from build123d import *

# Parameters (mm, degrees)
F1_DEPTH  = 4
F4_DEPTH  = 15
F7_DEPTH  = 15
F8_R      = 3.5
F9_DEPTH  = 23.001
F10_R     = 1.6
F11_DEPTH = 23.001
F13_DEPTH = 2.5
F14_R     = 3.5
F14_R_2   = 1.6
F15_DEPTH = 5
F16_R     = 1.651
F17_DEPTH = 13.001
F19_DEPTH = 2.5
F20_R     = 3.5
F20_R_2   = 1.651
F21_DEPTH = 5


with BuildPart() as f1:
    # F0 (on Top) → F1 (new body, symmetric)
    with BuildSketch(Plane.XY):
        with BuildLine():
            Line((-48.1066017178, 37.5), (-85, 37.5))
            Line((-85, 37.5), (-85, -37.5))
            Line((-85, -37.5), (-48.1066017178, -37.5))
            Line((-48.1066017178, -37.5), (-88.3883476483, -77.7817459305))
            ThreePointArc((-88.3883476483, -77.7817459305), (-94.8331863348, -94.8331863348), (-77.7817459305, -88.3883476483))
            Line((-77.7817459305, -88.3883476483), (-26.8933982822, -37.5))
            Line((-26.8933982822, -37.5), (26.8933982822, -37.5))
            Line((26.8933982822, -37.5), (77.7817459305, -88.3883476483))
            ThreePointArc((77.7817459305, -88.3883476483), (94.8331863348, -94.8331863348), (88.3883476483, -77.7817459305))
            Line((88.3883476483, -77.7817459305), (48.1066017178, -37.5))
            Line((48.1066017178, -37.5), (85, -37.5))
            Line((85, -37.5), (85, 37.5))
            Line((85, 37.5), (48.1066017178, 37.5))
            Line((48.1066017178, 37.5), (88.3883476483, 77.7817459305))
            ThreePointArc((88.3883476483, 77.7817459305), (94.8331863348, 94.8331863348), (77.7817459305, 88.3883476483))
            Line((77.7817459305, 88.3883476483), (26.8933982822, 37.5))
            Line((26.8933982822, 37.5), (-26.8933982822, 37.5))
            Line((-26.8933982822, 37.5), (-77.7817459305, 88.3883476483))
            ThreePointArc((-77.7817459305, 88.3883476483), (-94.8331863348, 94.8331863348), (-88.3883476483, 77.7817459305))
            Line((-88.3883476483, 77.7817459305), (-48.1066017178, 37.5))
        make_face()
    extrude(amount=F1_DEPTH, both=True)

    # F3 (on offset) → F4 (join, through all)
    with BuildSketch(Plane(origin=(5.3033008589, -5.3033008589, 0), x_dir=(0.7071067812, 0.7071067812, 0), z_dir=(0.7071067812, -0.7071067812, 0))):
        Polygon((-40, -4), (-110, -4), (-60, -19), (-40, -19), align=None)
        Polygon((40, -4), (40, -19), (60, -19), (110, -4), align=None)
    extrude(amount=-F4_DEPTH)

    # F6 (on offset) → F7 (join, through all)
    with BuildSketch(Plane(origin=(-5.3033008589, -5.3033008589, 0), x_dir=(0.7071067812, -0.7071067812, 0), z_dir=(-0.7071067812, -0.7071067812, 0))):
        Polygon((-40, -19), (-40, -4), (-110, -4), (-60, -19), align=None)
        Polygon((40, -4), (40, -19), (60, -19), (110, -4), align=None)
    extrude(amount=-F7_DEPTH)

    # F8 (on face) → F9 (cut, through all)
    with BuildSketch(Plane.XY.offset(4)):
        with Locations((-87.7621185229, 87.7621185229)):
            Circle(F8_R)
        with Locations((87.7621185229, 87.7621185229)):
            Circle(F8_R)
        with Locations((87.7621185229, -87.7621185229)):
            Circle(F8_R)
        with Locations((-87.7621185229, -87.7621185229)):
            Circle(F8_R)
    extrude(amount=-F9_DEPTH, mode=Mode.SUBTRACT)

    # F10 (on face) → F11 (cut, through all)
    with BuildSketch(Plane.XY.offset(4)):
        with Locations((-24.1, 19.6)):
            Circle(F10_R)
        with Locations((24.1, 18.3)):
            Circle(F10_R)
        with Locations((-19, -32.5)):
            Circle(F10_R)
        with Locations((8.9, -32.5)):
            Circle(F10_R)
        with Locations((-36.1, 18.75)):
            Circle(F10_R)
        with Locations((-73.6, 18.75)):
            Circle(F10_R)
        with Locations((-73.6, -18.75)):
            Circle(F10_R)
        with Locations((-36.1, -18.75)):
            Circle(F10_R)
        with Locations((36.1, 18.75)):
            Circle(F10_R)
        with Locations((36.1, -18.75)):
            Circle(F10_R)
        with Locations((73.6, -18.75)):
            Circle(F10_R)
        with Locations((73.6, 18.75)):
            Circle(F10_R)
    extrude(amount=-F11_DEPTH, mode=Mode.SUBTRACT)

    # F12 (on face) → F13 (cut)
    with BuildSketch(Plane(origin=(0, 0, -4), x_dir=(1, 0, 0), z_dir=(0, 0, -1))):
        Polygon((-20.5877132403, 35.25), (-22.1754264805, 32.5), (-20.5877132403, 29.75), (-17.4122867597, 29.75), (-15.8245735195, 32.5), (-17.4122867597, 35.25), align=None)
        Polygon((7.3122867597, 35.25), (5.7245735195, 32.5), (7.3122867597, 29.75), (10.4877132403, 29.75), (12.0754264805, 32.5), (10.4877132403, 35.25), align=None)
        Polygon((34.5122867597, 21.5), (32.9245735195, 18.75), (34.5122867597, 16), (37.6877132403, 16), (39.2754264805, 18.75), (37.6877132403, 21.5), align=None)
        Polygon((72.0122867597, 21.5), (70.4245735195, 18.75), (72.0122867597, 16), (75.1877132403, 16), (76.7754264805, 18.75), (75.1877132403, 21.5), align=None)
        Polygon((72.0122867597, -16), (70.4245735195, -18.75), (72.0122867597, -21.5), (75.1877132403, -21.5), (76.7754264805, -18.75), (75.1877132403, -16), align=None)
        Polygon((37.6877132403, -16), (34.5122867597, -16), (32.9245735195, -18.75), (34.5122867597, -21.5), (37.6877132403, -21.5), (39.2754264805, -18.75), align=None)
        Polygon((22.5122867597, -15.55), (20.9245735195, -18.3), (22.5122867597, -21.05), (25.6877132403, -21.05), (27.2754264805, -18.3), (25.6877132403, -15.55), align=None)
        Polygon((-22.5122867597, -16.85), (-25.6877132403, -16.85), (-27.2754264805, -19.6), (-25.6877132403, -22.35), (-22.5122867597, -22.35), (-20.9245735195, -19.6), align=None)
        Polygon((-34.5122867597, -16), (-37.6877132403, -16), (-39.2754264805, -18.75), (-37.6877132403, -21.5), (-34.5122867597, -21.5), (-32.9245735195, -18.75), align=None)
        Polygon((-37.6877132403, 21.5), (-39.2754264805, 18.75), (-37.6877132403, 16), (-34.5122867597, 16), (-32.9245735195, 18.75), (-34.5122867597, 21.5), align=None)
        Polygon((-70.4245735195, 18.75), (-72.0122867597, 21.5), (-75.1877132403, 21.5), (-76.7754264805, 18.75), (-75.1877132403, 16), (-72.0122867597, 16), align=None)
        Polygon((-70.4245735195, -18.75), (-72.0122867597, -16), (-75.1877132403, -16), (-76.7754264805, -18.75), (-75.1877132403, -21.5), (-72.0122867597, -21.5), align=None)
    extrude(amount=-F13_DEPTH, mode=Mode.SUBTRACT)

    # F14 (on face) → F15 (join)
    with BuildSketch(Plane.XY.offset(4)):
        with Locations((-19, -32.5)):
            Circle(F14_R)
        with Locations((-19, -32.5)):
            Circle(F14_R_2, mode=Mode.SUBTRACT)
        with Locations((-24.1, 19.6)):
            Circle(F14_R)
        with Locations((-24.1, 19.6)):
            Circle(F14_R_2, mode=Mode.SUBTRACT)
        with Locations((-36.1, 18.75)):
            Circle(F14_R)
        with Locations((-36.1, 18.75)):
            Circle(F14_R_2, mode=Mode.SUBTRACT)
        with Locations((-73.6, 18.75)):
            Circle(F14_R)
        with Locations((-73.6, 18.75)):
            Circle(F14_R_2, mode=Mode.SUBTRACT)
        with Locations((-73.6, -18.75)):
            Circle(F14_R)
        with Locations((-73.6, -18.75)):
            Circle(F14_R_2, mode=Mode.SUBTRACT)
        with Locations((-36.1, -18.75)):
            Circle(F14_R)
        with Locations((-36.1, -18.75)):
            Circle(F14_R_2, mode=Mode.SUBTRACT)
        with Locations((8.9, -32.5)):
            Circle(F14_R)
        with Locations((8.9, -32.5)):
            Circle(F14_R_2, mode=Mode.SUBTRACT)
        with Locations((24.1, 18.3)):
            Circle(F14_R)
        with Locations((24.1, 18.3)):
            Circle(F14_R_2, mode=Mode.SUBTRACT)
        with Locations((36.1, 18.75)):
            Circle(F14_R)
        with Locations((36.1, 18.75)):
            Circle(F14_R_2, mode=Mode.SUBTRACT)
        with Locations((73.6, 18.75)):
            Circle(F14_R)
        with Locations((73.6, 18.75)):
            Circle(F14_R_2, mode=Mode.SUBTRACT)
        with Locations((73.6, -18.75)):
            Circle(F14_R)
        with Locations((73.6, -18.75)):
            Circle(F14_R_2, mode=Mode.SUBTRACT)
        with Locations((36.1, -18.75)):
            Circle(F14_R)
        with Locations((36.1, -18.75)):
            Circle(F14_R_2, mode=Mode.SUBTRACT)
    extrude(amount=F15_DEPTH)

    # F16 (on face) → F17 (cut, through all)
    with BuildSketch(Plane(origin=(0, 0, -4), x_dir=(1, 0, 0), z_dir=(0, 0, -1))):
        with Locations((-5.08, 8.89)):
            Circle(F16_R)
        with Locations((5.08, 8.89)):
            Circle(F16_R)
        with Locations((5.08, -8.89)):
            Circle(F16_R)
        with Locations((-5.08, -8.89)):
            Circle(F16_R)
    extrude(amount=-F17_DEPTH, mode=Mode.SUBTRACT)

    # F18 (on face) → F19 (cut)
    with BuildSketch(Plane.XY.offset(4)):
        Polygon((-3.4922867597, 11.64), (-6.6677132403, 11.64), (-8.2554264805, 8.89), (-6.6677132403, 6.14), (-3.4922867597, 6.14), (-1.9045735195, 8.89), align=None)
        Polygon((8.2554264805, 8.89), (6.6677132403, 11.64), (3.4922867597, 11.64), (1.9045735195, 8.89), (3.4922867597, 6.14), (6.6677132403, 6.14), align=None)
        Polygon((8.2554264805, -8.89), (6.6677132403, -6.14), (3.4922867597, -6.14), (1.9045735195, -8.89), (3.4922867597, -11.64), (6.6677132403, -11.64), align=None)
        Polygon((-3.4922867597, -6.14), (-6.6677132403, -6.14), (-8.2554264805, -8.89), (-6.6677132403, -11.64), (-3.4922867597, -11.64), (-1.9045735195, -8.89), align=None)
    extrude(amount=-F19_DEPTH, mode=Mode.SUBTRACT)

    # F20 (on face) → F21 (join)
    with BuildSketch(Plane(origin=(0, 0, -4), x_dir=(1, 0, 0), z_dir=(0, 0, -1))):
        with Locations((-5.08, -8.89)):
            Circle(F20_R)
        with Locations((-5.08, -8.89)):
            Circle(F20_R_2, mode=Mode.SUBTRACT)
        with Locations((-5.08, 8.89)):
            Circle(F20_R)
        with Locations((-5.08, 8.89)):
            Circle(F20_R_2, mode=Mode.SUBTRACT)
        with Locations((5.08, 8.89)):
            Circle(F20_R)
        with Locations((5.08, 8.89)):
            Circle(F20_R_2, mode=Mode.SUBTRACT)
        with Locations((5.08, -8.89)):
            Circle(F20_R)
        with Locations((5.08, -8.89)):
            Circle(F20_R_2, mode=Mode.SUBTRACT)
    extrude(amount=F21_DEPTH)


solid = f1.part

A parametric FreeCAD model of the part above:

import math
import FreeCAD as App
import Part
import Sketcher
from FreeCAD import Vector
Q = App.Units.Quantity

doc = App.newDocument("Part")
params = doc.addObject("Spreadsheet::Sheet", "Params")
for row, (alias, value) in enumerate([
    ("sketch1_radius", "10 mm"),
    ("sketch1_height", "75 mm"),
    ("pad1_length", "8 mm"),
    ("sketch2_width", "70 mm"),
    ("sketch2_width2", "20 mm"),
    ("sketch2_height", "15 mm"),
    ("pad2_length", "15 mm"),
    ("sketch3_width", "70 mm"),
    ("sketch3_width2", "20 mm"),
    ("sketch3_height", "15 mm"),
    ("pad3_length", "15 mm"),
    ("sketch4_diameter", "7 mm"),
    ("sketch5_diameter", "3.2 mm"),
    ("pocket3_length", "2.5 mm"),
    ("sketch7_diameter", "7 mm"),
    ("sketch7_diameter2", "3.2 mm"),
    ("pad4_length", "5 mm"),
    ("pocket5_length", "2.5 mm"),
    ("sketch10_diameter", "7 mm"),
    ("pad5_length", "5 mm"),
], start=1):
    params.set(f"A{row}", alias)
    params.set(f"B{row}", "=" + value)
    params.setAlias(f"B{row}", alias)

body = doc.addObject("PartDesign::Body", "Body")

sketch1 = body.newObject("Sketcher::SketchObject", "Sketch")
sketch1.AttachmentSupport = (doc.getObject("XY_Plane"), [""])
sketch1.MapMode = "FlatFace"
sketch1.addGeometry([
    Part.LineSegment(Vector(-48, 38, 0), Vector(-85, 38, 0)),
    Part.LineSegment(Vector(-85, 38, 0), Vector(-85, -38, 0)),
    Part.LineSegment(Vector(-85, -38, 0), Vector(-48, -38, 0)),
    Part.LineSegment(Vector(-48, -38, 0), Vector(-88, -78, 0)),
    Part.ArcOfCircle(Part.Circle(Vector(-88, -88, 0), Vector(0, 0, 1), 10), math.radians(94), math.radians(356)),
    Part.LineSegment(Vector(-78, -88, 0), Vector(-27, -38, 0)),
    Part.LineSegment(Vector(-27, -38, 0), Vector(27, -38, 0)),
    Part.LineSegment(Vector(27, -38, 0), Vector(78, -88, 0)),
    Part.ArcOfCircle(Part.Circle(Vector(88, -88, 0), Vector(0, 0, 1), 10), math.radians(-176), math.radians(86)),
    Part.LineSegment(Vector(88, -78, 0), Vector(48, -38, 0)),
    Part.LineSegment(Vector(48, -38, 0), Vector(85, -38, 0)),
    Part.LineSegment(Vector(85, -38, 0), Vector(85, 38, 0)),
    Part.LineSegment(Vector(85, 38, 0), Vector(48, 38, 0)),
    Part.LineSegment(Vector(48, 38, 0), Vector(88, 78, 0)),
    Part.ArcOfCircle(Part.Circle(Vector(88, 88, 0), Vector(0, 0, 1), 10), math.radians(-86), math.radians(176)),
    Part.LineSegment(Vector(78, 88, 0), Vector(27, 38, 0)),
    Part.LineSegment(Vector(27, 38, 0), Vector(-27, 38, 0)),
    Part.LineSegment(Vector(-27, 38, 0), Vector(-78, 88, 0)),
    Part.ArcOfCircle(Part.Circle(Vector(-88, 88, 0), Vector(0, 0, 1), 10), math.radians(4), math.radians(266)),
    Part.LineSegment(Vector(-88, 78, 0), Vector(-48, 38, 0)),
], False)
sketch1.addConstraint([
    Sketcher.Constraint("Coincident", 0, 2, 1, 1),
    Sketcher.Constraint("Coincident", 1, 2, 2, 1),
    Sketcher.Constraint("Coincident", 2, 2, 3, 1),
    Sketcher.Constraint("Coincident", 3, 2, 4, 1),
    Sketcher.Constraint("Coincident", 4, 2, 5, 1),
    Sketcher.Constraint("Coincident", 5, 2, 6, 1),
    Sketcher.Constraint("Coincident", 6, 2, 7, 1),
    Sketcher.Constraint("Coincident", 7, 2, 8, 1),
    Sketcher.Constraint("Coincident", 8, 2, 9, 1),
    Sketcher.Constraint("Coincident", 9, 2, 10, 1),
    Sketcher.Constraint("Coincident", 10, 2, 11, 1),
    Sketcher.Constraint("Coincident", 11, 2, 12, 1),
    Sketcher.Constraint("Coincident", 12, 2, 13, 1),
    Sketcher.Constraint("Coincident", 13, 2, 14, 1),
    Sketcher.Constraint("Coincident", 14, 2, 15, 1),
    Sketcher.Constraint("Coincident", 15, 2, 16, 1),
    Sketcher.Constraint("Coincident", 16, 2, 17, 1),
    Sketcher.Constraint("Coincident", 17, 2, 18, 1),
    Sketcher.Constraint("Coincident", 18, 2, 19, 1),
    Sketcher.Constraint("Coincident", 19, 2, 0, 1),
    Sketcher.Constraint("Horizontal", 0),
    Sketcher.Constraint("Vertical", 1),
    Sketcher.Constraint("Horizontal", 2),
    Sketcher.Constraint("Horizontal", 6),
    Sketcher.Constraint("Horizontal", 10),
    Sketcher.Constraint("Vertical", 11),
    Sketcher.Constraint("Horizontal", 12),
    Sketcher.Constraint("Horizontal", 16),
    Sketcher.Constraint("Equal", 4, 8),
    Sketcher.Constraint("Equal", 8, 14),
    Sketcher.Constraint("Equal", 14, 18),
    Sketcher.Constraint("Symmetric", 4, 3, 14, 3, -1, 1),
    Sketcher.Constraint("Symmetric", 8, 3, 18, 3, -1, 1),
    Sketcher.Constraint("Symmetric", 0, 2, 10, 2, -1, 1),
    Sketcher.Constraint("Symmetric", 2, 2, 12, 2, -1, 1),
    Sketcher.Constraint("Symmetric", 5, 2, 15, 2, -1, 1),
    Sketcher.Constraint("Symmetric", 4, 3, 8, 3, -2),
    Sketcher.Constraint("Symmetric", 2, 2, 9, 2, -2),
    Sketcher.Constraint("Parallel", 3, 5),
    Sketcher.Constraint("Perpendicular", 5, 7),
    Sketcher.Constraint("Parallel", 7, 9),
    Sketcher.Constraint("Perpendicular", 9, 13),
    Sketcher.Constraint("Parallel", 13, 15),
    Sketcher.Constraint("Perpendicular", 15, 17),
    Sketcher.Constraint("Parallel", 17, 19),
    Sketcher.Constraint("Horizontal", 2, 2, 5, 2),
    Sketcher.Constraint("Horizontal", 4, 2, 7, 2),
    Sketcher.Constraint("Horizontal", 3, 2, 8, 2),
    Sketcher.Constraint("Horizontal", 14, 2, 17, 2),
    Sketcher.Constraint("Horizontal", 13, 2, 18, 2),
    Sketcher.Constraint("Radius", 4, Q("10 mm")),
    Sketcher.Constraint("DistanceY", 1, 2, 1, 1, Q("75 mm")),
    Sketcher.Constraint("DistanceX", 0, 2, -1, 1, Q("85 mm")),
    Sketcher.Constraint("DistanceX", 2, 2, 6, 2, Q("75 mm")),
    Sketcher.Constraint("DistanceX", 0, 2, 0, 1, Q("36.893398 mm")),
    Sketcher.Constraint("DistanceX", 3, 2, 4, 2, Q("10.606602 mm")),
    Sketcher.Constraint("Distance", 3, Q("56.966991 mm")),
])
sketch1.setExpression("Constraints[50]", "Params.sketch1_radius")
sketch1.setExpression("Constraints[51]", "Params.sketch1_height")
pad1 = body.newObject("PartDesign::Pad", "Pad")
pad1.Profile = sketch1
pad1.setExpression("Length", "Params.pad1_length")
pad1.Midplane = True

sketch2 = body.newObject("Sketcher::SketchObject", "Sketch001")
sketch2.Placement = App.Placement(Vector(5.303301, -5.303301, 0), App.Rotation(Vector(0.707106781, 0.707106781, 0), Vector(0, 0, 0.999999999), Vector(0.707106781, -0.707106781, 0), "ZXY"))
sketch2.addGeometry([
    Part.LineSegment(Vector(-40, -4, 0), Vector(-110, -4, 0)),
    Part.LineSegment(Vector(-110, -4, 0), Vector(-60, -19, 0)),
    Part.LineSegment(Vector(-60, -19, 0), Vector(-40, -19, 0)),
    Part.LineSegment(Vector(-40, -19, 0), Vector(-40, -4, 0)),
    Part.LineSegment(Vector(40, -4, 0), Vector(40, -19, 0)),
    Part.LineSegment(Vector(40, -19, 0), Vector(60, -19, 0)),
    Part.LineSegment(Vector(60, -19, 0), Vector(110, -4, 0)),
    Part.LineSegment(Vector(110, -4, 0), Vector(40, -4, 0)),
], False)
sketch2.addConstraint([
    Sketcher.Constraint("Coincident", 0, 2, 1, 1),
    Sketcher.Constraint("Coincident", 1, 2, 2, 1),
    Sketcher.Constraint("Coincident", 2, 2, 3, 1),
    Sketcher.Constraint("Coincident", 3, 2, 0, 1),
    Sketcher.Constraint("Coincident", 4, 2, 5, 1),
    Sketcher.Constraint("Coincident", 5, 2, 6, 1),
    Sketcher.Constraint("Coincident", 6, 2, 7, 1),
    Sketcher.Constraint("Coincident", 7, 2, 4, 1),
    Sketcher.Constraint("Horizontal", 0),
    Sketcher.Constraint("Horizontal", 2),
    Sketcher.Constraint("Vertical", 3),
    Sketcher.Constraint("Vertical", 4),
    Sketcher.Constraint("Horizontal", 5),
    Sketcher.Constraint("Horizontal", 7),
    Sketcher.Constraint("Symmetric", 2, 2, 4, 2, -2),
    Sketcher.Constraint("Symmetric", 0, 2, 6, 2, -2),
    Sketcher.Constraint("Equal", 2, 5),
    Sketcher.Constraint("DistanceX", 0, 2, 0, 1, Q("70 mm")),
    Sketcher.Constraint("DistanceX", 2, 1, 2, 2, Q("20 mm")),
    Sketcher.Constraint("DistanceY", 3, 1, 3, 2, Q("15 mm")),
    Sketcher.Constraint("DistanceX", 0, 2, -1, 1, Q("110 mm")),
    Sketcher.Constraint("DistanceY", 0, 2, -1, 1, Q("4 mm")),
])
sketch2.setExpression("Constraints[17]", "Params.sketch2_width")
sketch2.setExpression("Constraints[18]", "Params.sketch2_width2")
sketch2.setExpression("Constraints[19]", "Params.sketch2_height")
pad2 = body.newObject("PartDesign::Pad", "Pad001")
pad2.Profile = sketch2
pad2.setExpression("Length", "Params.pad2_length")
pad2.Reversed = True

sketch3 = body.newObject("Sketcher::SketchObject", "Sketch002")
sketch3.Placement = App.Placement(Vector(-5.303301, -5.303301, 0), App.Rotation(Vector(0.707106781, -0.707106781, 0), Vector(0, 0, 0.999999999), Vector(-0.707106781, -0.707106781, 0), "ZXY"))
sketch3.addGeometry([
    Part.LineSegment(Vector(-40, -19, 0), Vector(-40, -4, 0)),
    Part.LineSegment(Vector(-40, -4, 0), Vector(-110, -4, 0)),
    Part.LineSegment(Vector(-110, -4, 0), Vector(-60, -19, 0)),
    Part.LineSegment(Vector(-60, -19, 0), Vector(-40, -19, 0)),
    Part.LineSegment(Vector(40, -4, 0), Vector(40, -19, 0)),
    Part.LineSegment(Vector(40, -19, 0), Vector(60, -19, 0)),
    Part.LineSegment(Vector(60, -19, 0), Vector(110, -4, 0)),
    Part.LineSegment(Vector(110, -4, 0), Vector(40, -4, 0)),
], False)
sketch3.addConstraint([
    Sketcher.Constraint("Coincident", 0, 2, 1, 1),
    Sketcher.Constraint("Coincident", 1, 2, 2, 1),
    Sketcher.Constraint("Coincident", 2, 2, 3, 1),
    Sketcher.Constraint("Coincident", 3, 2, 0, 1),
    Sketcher.Constraint("Coincident", 4, 2, 5, 1),
    Sketcher.Constraint("Coincident", 5, 2, 6, 1),
    Sketcher.Constraint("Coincident", 6, 2, 7, 1),
    Sketcher.Constraint("Coincident", 7, 2, 4, 1),
    Sketcher.Constraint("Vertical", 0),
    Sketcher.Constraint("Horizontal", 1),
    Sketcher.Constraint("Horizontal", 3),
    Sketcher.Constraint("Vertical", 4),
    Sketcher.Constraint("Horizontal", 5),
    Sketcher.Constraint("Horizontal", 7),
    Sketcher.Constraint("Symmetric", 3, 2, 4, 2, -2),
    Sketcher.Constraint("Symmetric", 1, 2, 6, 2, -2),
    Sketcher.Constraint("Equal", 3, 5),
    Sketcher.Constraint("DistanceX", 1, 2, 1, 1, Q("70 mm")),
    Sketcher.Constraint("DistanceX", 3, 1, 3, 2, Q("20 mm")),
    Sketcher.Constraint("DistanceY", 0, 1, 0, 2, Q("15 mm")),
    Sketcher.Constraint("DistanceX", 0, 2, -1, 1, Q("40 mm")),
    Sketcher.Constraint("DistanceY", 0, 2, -1, 1, Q("4 mm")),
])
sketch3.setExpression("Constraints[17]", "Params.sketch3_width")
sketch3.setExpression("Constraints[18]", "Params.sketch3_width2")
sketch3.setExpression("Constraints[19]", "Params.sketch3_height")
pad3 = body.newObject("PartDesign::Pad", "Pad002")
pad3.Profile = sketch3
pad3.setExpression("Length", "Params.pad3_length")
pad3.Reversed = True

sketch4 = body.newObject("Sketcher::SketchObject", "Sketch003")
sketch4.AttachmentSupport = (doc.getObject("XY_Plane"), [""])
sketch4.MapMode = "FlatFace"
sketch4.AttachmentOffset = App.Placement(Vector(0, 0, 4), App.Rotation())
sketch4.addGeometry([
    Part.Circle(Vector(-87.8, 87.8, 0), Vector(0, 0, 1), 3.5),
    Part.Circle(Vector(87.8, 87.8, 0), Vector(0, 0, 1), 3.5),
    Part.Circle(Vector(87.8, -87.8, 0), Vector(0, 0, 1), 3.5),
    Part.Circle(Vector(-87.8, -87.8, 0), Vector(0, 0, 1), 3.5),
], False)
sketch4.addConstraint([
    Sketcher.Constraint("Equal", 0, 1),
    Sketcher.Constraint("Equal", 1, 2),
    Sketcher.Constraint("Equal", 2, 3),
    Sketcher.Constraint("Symmetric", 0, 3, 2, 3, -1, 1),
    Sketcher.Constraint("Symmetric", 1, 3, 3, 3, -1, 1),
    Sketcher.Constraint("Symmetric", 0, 3, 1, 3, -2),
    Sketcher.Constraint("Diameter", 0, Q("7 mm")),
    Sketcher.Constraint("DistanceX", 0, 3, -1, 1, Q("87.762119 mm")),
    Sketcher.Constraint("DistanceY", -1, 1, 0, 3, Q("87.762119 mm")),
])
sketch4.setExpression("Constraints[6]", "Params.sketch4_diameter")
pocket1 = body.newObject("PartDesign::Pocket", "Pocket")
pocket1.Profile = sketch4
pocket1.Type = "ThroughAll"

sketch5 = body.newObject("Sketcher::SketchObject", "Sketch004")
sketch5.AttachmentSupport = (doc.getObject("XY_Plane"), [""])
sketch5.MapMode = "FlatFace"
sketch5.AttachmentOffset = App.Placement(Vector(0, 0, 4), App.Rotation())
sketch5.addGeometry([
    Part.Circle(Vector(-24.1, 19.6, 0), Vector(0, 0, 1), 1.6),
    Part.Circle(Vector(24.1, 18.3, 0), Vector(0, 0, 1), 1.6),
    Part.Circle(Vector(-19, -32.5, 0), Vector(0, 0, 1), 1.6),
    Part.Circle(Vector(8.9, -32.5, 0), Vector(0, 0, 1), 1.6),
    Part.Circle(Vector(-36.1, 18.8, 0), Vector(0, 0, 1), 1.6),
    Part.Circle(Vector(-73.6, 18.8, 0), Vector(0, 0, 1), 1.6),
    Part.Circle(Vector(-73.6, -18.8, 0), Vector(0, 0, 1), 1.6),
    Part.Circle(Vector(-36.1, -18.8, 0), Vector(0, 0, 1), 1.6),
    Part.Circle(Vector(36.1, 18.8, 0), Vector(0, 0, 1), 1.6),
    Part.Circle(Vector(36.1, -18.8, 0), Vector(0, 0, 1), 1.6),
    Part.Circle(Vector(73.6, -18.8, 0), Vector(0, 0, 1), 1.6),
    Part.Circle(Vector(73.6, 18.8, 0), Vector(0, 0, 1), 1.6),
], False)
sketch5.addConstraint([
    Sketcher.Constraint("Equal", 0, 1),
    Sketcher.Constraint("Equal", 1, 2),
    Sketcher.Constraint("Equal", 2, 3),
    Sketcher.Constraint("Equal", 3, 4),
    Sketcher.Constraint("Equal", 4, 5),
    Sketcher.Constraint("Equal", 5, 6),
    Sketcher.Constraint("Equal", 6, 7),
    Sketcher.Constraint("Equal", 7, 8),
    Sketcher.Constraint("Equal", 8, 9),
    Sketcher.Constraint("Equal", 9, 10),
    Sketcher.Constraint("Equal", 10, 11),
    Sketcher.Constraint("Symmetric", 7, 3, 8, 3, -1, 1),
    Sketcher.Constraint("Symmetric", 4, 3, 9, 3, -1, 1),
    Sketcher.Constraint("Symmetric", 5, 3, 10, 3, -1, 1),
    Sketcher.Constraint("Symmetric", 6, 3, 11, 3, -1, 1),
    Sketcher.Constraint("Symmetric", 4, 3, 8, 3, -2),
    Sketcher.Constraint("Symmetric", 6, 3, 10, 3, -2),
    Sketcher.Constraint("Horizontal", 2, 3, 3, 3),
    Sketcher.Constraint("Horizontal", 4, 3, 5, 3),
    Sketcher.Constraint("Diameter", 0, Q("3.2 mm")),
    Sketcher.Constraint("DistanceX", 2, 3, -1, 1, Q("19 mm")),
    Sketcher.Constraint("DistanceX", 0, 3, 3, 3, Q("33 mm")),
    Sketcher.Constraint("DistanceX", 4, 3, 0, 3, Q("12 mm")),
    Sketcher.Constraint("DistanceX", 1, 3, 8, 3, Q("12 mm")),
    Sketcher.Constraint("DistanceX", 0, 3, -1, 1, Q("24.1 mm")),
    Sketcher.Constraint("DistanceY", -1, 1, 0, 3, Q("19.6 mm")),
    Sketcher.Constraint("DistanceY", -1, 1, 1, 3, Q("18.3 mm")),
    Sketcher.Constraint("DistanceY", 2, 3, -1, 1, Q("32.5 mm")),
    Sketcher.Constraint("DistanceX", 5, 3, -1, 1, Q("73.6 mm")),
    Sketcher.Constraint("DistanceY", 6, 3, 5, 3, Q("37.5 mm")),
])
sketch5.setExpression("Constraints[19]", "Params.sketch5_diameter")
pocket2 = body.newObject("PartDesign::Pocket", "Pocket001")
pocket2.Profile = sketch5
pocket2.Type = "ThroughAll"

sketch6 = body.newObject("Sketcher::SketchObject", "Sketch005")
sketch6.AttachmentSupport = (doc.getObject("XY_Plane"), [""])
sketch6.MapMode = "FlatFace"
sketch6.AttachmentOffset = App.Placement(Vector(0, 0, -4), App.Rotation())
sketch6.addGeometry([
    Part.LineSegment(Vector(-20.6, -35.2, 0), Vector(-22.2, -32.5, 0)),
    Part.LineSegment(Vector(-22.2, -32.5, 0), Vector(-20.6, -29.8, 0)),
    Part.LineSegment(Vector(-20.6, -29.8, 0), Vector(-17.4, -29.8, 0)),
    Part.LineSegment(Vector(-17.4, -29.8, 0), Vector(-15.8, -32.5, 0)),
    Part.LineSegment(Vector(-15.8, -32.5, 0), Vector(-17.4, -35.2, 0)),
    Part.LineSegment(Vector(-17.4, -35.2, 0), Vector(-20.6, -35.2, 0)),
    Part.LineSegment(Vector(7.3, -35.2, 0), Vector(5.7, -32.5, 0)),
    Part.LineSegment(Vector(5.7, -32.5, 0), Vector(7.3, -29.8, 0)),
    Part.LineSegment(Vector(7.3, -29.8, 0), Vector(10.5, -29.8, 0)),
    Part.LineSegment(Vector(10.5, -29.8, 0), Vector(12.1, -32.5, 0)),
    Part.LineSegment(Vector(12.1, -32.5, 0), Vector(10.5, -35.2, 0)),
    Part.LineSegment(Vector(10.5, -35.2, 0), Vector(7.3, -35.2, 0)),
    Part.LineSegment(Vector(34.5, -21.5, 0), Vector(32.9, -18.8, 0)),
    Part.LineSegment(Vector(32.9, -18.8, 0), Vector(34.5, -16, 0)),
    Part.LineSegment(Vector(34.5, -16, 0), Vector(37.7, -16, 0)),
    Part.LineSegment(Vector(37.7, -16, 0), Vector(39.3, -18.8, 0)),
    Part.LineSegment(Vector(39.3, -18.8, 0), Vector(37.7, -21.5, 0)),
    Part.LineSegment(Vector(37.7, -21.5, 0), Vector(34.5, -21.5, 0)),
    Part.LineSegment(Vector(72, -21.5, 0), Vector(70.4, -18.8, 0)),
    Part.LineSegment(Vector(70.4, -18.8, 0), Vector(72, -16, 0)),
    Part.LineSegment(Vector(72, -16, 0), Vector(75.2, -16, 0)),
    Part.LineSegment(Vector(75.2, -16, 0), Vector(76.8, -18.8, 0)),
    Part.LineSegment(Vector(76.8, -18.8, 0), Vector(75.2, -21.5, 0)),
    Part.LineSegment(Vector(75.2, -21.5, 0), Vector(72, -21.5, 0)),
    Part.LineSegment(Vector(72, 16, 0), Vector(70.4, 18.8, 0)),
    Part.LineSegment(Vector(70.4, 18.8, 0), Vector(72, 21.5, 0)),
    Part.LineSegment(Vector(72, 21.5, 0), Vector(75.2, 21.5, 0)),
    Part.LineSegment(Vector(75.2, 21.5, 0), Vector(76.8, 18.8, 0)),
    Part.LineSegment(Vector(76.8, 18.8, 0), Vector(75.2, 16, 0)),
    Part.LineSegment(Vector(75.2, 16, 0), Vector(72, 16, 0)),
    Part.LineSegment(Vector(37.7, 16, 0), Vector(34.5, 16, 0)),
    Part.LineSegment(Vector(34.5, 16, 0), Vector(32.9, 18.8, 0)),
    Part.LineSegment(Vector(32.9, 18.8, 0), Vector(34.5, 21.5, 0)),
    Part.LineSegment(Vector(34.5, 21.5, 0), Vector(37.7, 21.5, 0)),
    Part.LineSegment(Vector(37.7, 21.5, 0), Vector(39.3, 18.8, 0)),
    Part.LineSegment(Vector(39.3, 18.8, 0), Vector(37.7, 16, 0)),
    Part.LineSegment(Vector(22.5, 15.6, 0), Vector(20.9, 18.3, 0)),
    Part.LineSegment(Vector(20.9, 18.3, 0), Vector(22.5, 21.1, 0)),
    Part.LineSegment(Vector(22.5, 21.1, 0), Vector(25.7, 21.1, 0)),
    Part.LineSegment(Vector(25.7, 21.1, 0), Vector(27.3, 18.3, 0)),
    Part.LineSegment(Vector(27.3, 18.3, 0), Vector(25.7, 15.6, 0)),
    Part.LineSegment(Vector(25.7, 15.6, 0), Vector(22.5, 15.6, 0)),
    Part.LineSegment(Vector(-22.5, 16.9, 0), Vector(-25.7, 16.9, 0)),
    Part.LineSegment(Vector(-25.7, 16.9, 0), Vector(-27.3, 19.6, 0)),
    Part.LineSegment(Vector(-27.3, 19.6, 0), Vector(-25.7, 22.4, 0)),
    Part.LineSegment(Vector(-25.7, 22.4, 0), Vector(-22.5, 22.4, 0)),
    Part.LineSegment(Vector(-22.5, 22.4, 0), Vector(-20.9, 19.6, 0)),
    Part.LineSegment(Vector(-20.9, 19.6, 0), Vector(-22.5, 16.9, 0)),
    Part.LineSegment(Vector(-34.5, 16, 0), Vector(-37.7, 16, 0)),
    Part.LineSegment(Vector(-37.7, 16, 0), Vector(-39.3, 18.8, 0)),
    Part.LineSegment(Vector(-39.3, 18.8, 0), Vector(-37.7, 21.5, 0)),
    Part.LineSegment(Vector(-37.7, 21.5, 0), Vector(-34.5, 21.5, 0)),
    Part.LineSegment(Vector(-34.5, 21.5, 0), Vector(-32.9, 18.8, 0)),
    Part.LineSegment(Vector(-32.9, 18.8, 0), Vector(-34.5, 16, 0)),
    Part.LineSegment(Vector(-37.7, -21.5, 0), Vector(-39.3, -18.8, 0)),
    Part.LineSegment(Vector(-39.3, -18.8, 0), Vector(-37.7, -16, 0)),
    Part.LineSegment(Vector(-37.7, -16, 0), Vector(-34.5, -16, 0)),
    Part.LineSegment(Vector(-34.5, -16, 0), Vector(-32.9, -18.8, 0)),
    Part.LineSegment(Vector(-32.9, -18.8, 0), Vector(-34.5, -21.5, 0)),
    Part.LineSegment(Vector(-34.5, -21.5, 0), Vector(-37.7, -21.5, 0)),
    Part.LineSegment(Vector(-70.4, -18.8, 0), Vector(-72, -21.5, 0)),
    Part.LineSegment(Vector(-72, -21.5, 0), Vector(-75.2, -21.5, 0)),
    Part.LineSegment(Vector(-75.2, -21.5, 0), Vector(-76.8, -18.8, 0)),
    Part.LineSegment(Vector(-76.8, -18.8, 0), Vector(-75.2, -16, 0)),
    Part.LineSegment(Vector(-75.2, -16, 0), Vector(-72, -16, 0)),
    Part.LineSegment(Vector(-72, -16, 0), Vector(-70.4, -18.8, 0)),
    Part.LineSegment(Vector(-70.4, 18.8, 0), Vector(-72, 16, 0)),
    Part.LineSegment(Vector(-72, 16, 0), Vector(-75.2, 16, 0)),
    Part.LineSegment(Vector(-75.2, 16, 0), Vector(-76.8, 18.8, 0)),
    Part.LineSegment(Vector(-76.8, 18.8, 0), Vector(-75.2, 21.5, 0)),
    Part.LineSegment(Vector(-75.2, 21.5, 0), Vector(-72, 21.5, 0)),
    Part.LineSegment(Vector(-72, 21.5, 0), Vector(-70.4, 18.8, 0)),
], False)
sketch6.addConstraint([
    Sketcher.Constraint("Coincident", 0, 2, 1, 1),
    Sketcher.Constraint("Coincident", 1, 2, 2, 1),
    Sketcher.Constraint("Coincident", 2, 2, 3, 1),
    Sketcher.Constraint("Coincident", 3, 2, 4, 1),
    Sketcher.Constraint("Coincident", 4, 2, 5, 1),
    Sketcher.Constraint("Coincident", 5, 2, 0, 1),
    Sketcher.Constraint("Coincident", 6, 2, 7, 1),
    Sketcher.Constraint("Coincident", 7, 2, 8, 1),
    Sketcher.Constraint("Coincident", 8, 2, 9, 1),
    Sketcher.Constraint("Coincident", 9, 2, 10, 1),
    Sketcher.Constraint("Coincident", 10, 2, 11, 1),
    Sketcher.Constraint("Coincident", 11, 2, 6, 1),
    Sketcher.Constraint("Coincident", 12, 2, 13, 1),
    Sketcher.Constraint("Coincident", 13, 2, 14, 1),
    Sketcher.Constraint("Coincident", 14, 2, 15, 1),
    Sketcher.Constraint("Coincident", 15, 2, 16, 1),
    Sketcher.Constraint("Coincident", 16, 2, 17, 1),
    Sketcher.Constraint("Coincident", 17, 2, 12, 1),
    Sketcher.Constraint("Coincident", 18, 2, 19, 1),
    Sketcher.Constraint("Coincident", 19, 2, 20, 1),
    Sketcher.Constraint("Coincident", 20, 2, 21, 1),
    Sketcher.Constraint("Coincident", 21, 2, 22, 1),
    Sketcher.Constraint("Coincident", 22, 2, 23, 1),
    Sketcher.Constraint("Coincident", 23, 2, 18, 1),
    Sketcher.Constraint("Coincident", 24, 2, 25, 1),
    Sketcher.Constraint("Coincident", 25, 2, 26, 1),
    Sketcher.Constraint("Coincident", 26, 2, 27, 1),
    Sketcher.Constraint("Coincident", 27, 2, 28, 1),
    Sketcher.Constraint("Coincident", 28, 2, 29, 1),
    Sketcher.Constraint("Coincident", 29, 2, 24, 1),
    Sketcher.Constraint("Coincident", 30, 2, 31, 1),
    Sketcher.Constraint("Coincident", 31, 2, 32, 1),
    Sketcher.Constraint("Coincident", 32, 2, 33, 1),
    Sketcher.Constraint("Coincident", 33, 2, 34, 1),
    Sketcher.Constraint("Coincident", 34, 2, 35, 1),
    Sketcher.Constraint("Coincident", 35, 2, 30, 1),
    Sketcher.Constraint("Coincident", 36, 2, 37, 1),
    Sketcher.Constraint("Coincident", 37, 2, 38, 1),
    Sketcher.Constraint("Coincident", 38, 2, 39, 1),
    Sketcher.Constraint("Coincident", 39, 2, 40, 1),
    Sketcher.Constraint("Coincident", 40, 2, 41, 1),
    Sketcher.Constraint("Coincident", 41, 2, 36, 1),
    Sketcher.Constraint("Coincident", 42, 2, 43, 1),
    Sketcher.Constraint("Coincident", 43, 2, 44, 1),
    Sketcher.Constraint("Coincident", 44, 2, 45, 1),
    Sketcher.Constraint("Coincident", 45, 2, 46, 1),
    Sketcher.Constraint("Coincident", 46, 2, 47, 1),
    Sketcher.Constraint("Coincident", 47, 2, 42, 1),
    Sketcher.Constraint("Coincident", 48, 2, 49, 1),
    Sketcher.Constraint("Coincident", 49, 2, 50, 1),
    Sketcher.Constraint("Coincident", 50, 2, 51, 1),
    Sketcher.Constraint("Coincident", 51, 2, 52, 1),
    Sketcher.Constraint("Coincident", 52, 2, 53, 1),
    Sketcher.Constraint("Coincident", 53, 2, 48, 1),
    Sketcher.Constraint("Coincident", 54, 2, 55, 1),
    Sketcher.Constraint("Coincident", 55, 2, 56, 1),
    Sketcher.Constraint("Coincident", 56, 2, 57, 1),
    Sketcher.Constraint("Coincident", 57, 2, 58, 1),
    Sketcher.Constraint("Coincident", 58, 2, 59, 1),
    Sketcher.Constraint("Coincident", 59, 2, 54, 1),
    Sketcher.Constraint("Coincident", 60, 2, 61, 1),
    Sketcher.Constraint("Coincident", 61, 2, 62, 1),
    Sketcher.Constraint("Coincident", 62, 2, 63, 1),
    Sketcher.Constraint("Coincident", 63, 2, 64, 1),
    Sketcher.Constraint("Coincident", 64, 2, 65, 1),
    Sketcher.Constraint("Coincident", 65, 2, 60, 1),
    Sketcher.Constraint("Coincident", 66, 2, 67, 1),
    Sketcher.Constraint("Coincident", 67, 2, 68, 1),
    Sketcher.Constraint("Coincident", 68, 2, 69, 1),
    Sketcher.Constraint("Coincident", 69, 2, 70, 1),
    Sketcher.Constraint("Coincident", 70, 2, 71, 1),
    Sketcher.Constraint("Coincident", 71, 2, 66, 1),
    Sketcher.Constraint("Horizontal", 2),
    Sketcher.Constraint("Horizontal", 5),
    Sketcher.Constraint("Horizontal", 8),
    Sketcher.Constraint("Horizontal", 11),
    Sketcher.Constraint("Horizontal", 14),
    Sketcher.Constraint("Horizontal", 17),
    Sketcher.Constraint("Horizontal", 20),
    Sketcher.Constraint("Horizontal", 23),
    Sketcher.Constraint("Horizontal", 26),
    Sketcher.Constraint("Horizontal", 29),
    Sketcher.Constraint("Horizontal", 30),
    Sketcher.Constraint("Horizontal", 33),
    Sketcher.Constraint("Horizontal", 38),
    Sketcher.Constraint("Horizontal", 41),
    Sketcher.Constraint("Horizontal", 42),
    Sketcher.Constraint("Horizontal", 45),
    Sketcher.Constraint("Horizontal", 48),
    Sketcher.Constraint("Horizontal", 51),
    Sketcher.Constraint("Horizontal", 56),
    Sketcher.Constraint("Horizontal", 59),
    Sketcher.Constraint("Horizontal", 61),
    Sketcher.Constraint("Horizontal", 64),
    Sketcher.Constraint("Horizontal", 67),
    Sketcher.Constraint("Horizontal", 70),
    Sketcher.Constraint("Symmetric", 14, 2, 48, 2, -1, 1),
    Sketcher.Constraint("Symmetric", 15, 2, 49, 2, -1, 1),
    Sketcher.Constraint("Symmetric", 16, 2, 50, 2, -1, 1),
    Sketcher.Constraint("Symmetric", 12, 2, 52, 2, -1, 1),
    Sketcher.Constraint("Symmetric", 34, 2, 54, 2, -1, 1),
    Sketcher.Constraint("Symmetric", 35, 2, 55, 2, -1, 1),
    Sketcher.Constraint("Symmetric", 31, 2, 57, 2, -1, 1),
    Sketcher.Constraint("Symmetric", 32, 2, 58, 2, -1, 1),
    Sketcher.Constraint("Symmetric", 25, 2, 60, 2, -1, 1),
    Sketcher.Constraint("Symmetric", 27, 2, 62, 2, -1, 1),
    Sketcher.Constraint("Symmetric", 28, 2, 63, 2, -1, 1),
    Sketcher.Constraint("Symmetric", 24, 2, 65, 2, -1, 1),
    Sketcher.Constraint("Symmetric", 19, 2, 66, 2, -1, 1),
    Sketcher.Constraint("Symmetric", 21, 2, 68, 2, -1, 1),
    Sketcher.Constraint("Symmetric", 22, 2, 69, 2, -1, 1),
    Sketcher.Constraint("Symmetric", 18, 2, 71, 2, -1, 1),
    Sketcher.Constraint("Symmetric", 35, 2, 48, 2, -2),
    Sketcher.Constraint("Symmetric", 34, 2, 49, 2, -2),
    Sketcher.Constraint("Symmetric", 33, 2, 50, 2, -2),
    Sketcher.Constraint("Symmetric", 31, 2, 52, 2, -2),
    Sketcher.Constraint("Symmetric", 23, 2, 60, 2, -2),
    Sketcher.Constraint("Symmetric", 21, 2, 62, 2, -2),
    Sketcher.Constraint("Symmetric", 20, 2, 63, 2, -2),
    Sketcher.Constraint("Symmetric", 18, 2, 65, 2, -2),
    Sketcher.Constraint("Parallel", 0, 3),
    Sketcher.Constraint("Parallel", 1, 4),
    Sketcher.Constraint("Parallel", 3, 6),
    Sketcher.Constraint("Parallel", 4, 7),
    Sketcher.Constraint("Parallel", 6, 9),
    Sketcher.Constraint("Parallel", 7, 10),
    Sketcher.Constraint("Parallel", 9, 12),
    Sketcher.Constraint("Parallel", 10, 13),
    Sketcher.Constraint("Parallel", 12, 15),
    Sketcher.Constraint("Parallel", 13, 16),
    Sketcher.Constraint("Parallel", 15, 18),
    Sketcher.Constraint("Parallel", 16, 19),
    Sketcher.Constraint("Parallel", 18, 21),
    Sketcher.Constraint("Parallel", 19, 22),
    Sketcher.Constraint("Parallel", 21, 24),
    Sketcher.Constraint("Parallel", 22, 25),
    Sketcher.Constraint("Parallel", 24, 27),
    Sketcher.Constraint("Parallel", 27, 31),
    Sketcher.Constraint("Parallel", 28, 32),
    Sketcher.Constraint("Parallel", 34, 36),
    Sketcher.Constraint("Parallel", 35, 37),
    Sketcher.Constraint("Parallel", 36, 39),
    Sketcher.Constraint("Parallel", 37, 40),
    Sketcher.Constraint("Parallel", 39, 43),
    Sketcher.Constraint("Parallel", 40, 44),
    Sketcher.Constraint("Parallel", 43, 46),
    Sketcher.Constraint("Parallel", 44, 47),
    Sketcher.Constraint("Parallel", 49, 52),
    Sketcher.Constraint("Parallel", 50, 53),
    Sketcher.Constraint("Parallel", 52, 54),
    Sketcher.Constraint("Parallel", 54, 57),
    Sketcher.Constraint("Parallel", 57, 62),
    Sketcher.Constraint("Parallel", 62, 65),
    Sketcher.Constraint("Parallel", 65, 68),
    Sketcher.Constraint("Parallel", 68, 71),
    Sketcher.Constraint("Horizontal", 0, 2, 3, 2),
    Sketcher.Constraint("Horizontal", 3, 2, 6, 2),
    Sketcher.Constraint("Horizontal", 2, 2, 7, 2),
    Sketcher.Constraint("Horizontal", 6, 2, 9, 2),
    Sketcher.Constraint("Horizontal", 5, 2, 10, 2),
    Sketcher.Constraint("Horizontal", 12, 2, 15, 2),
    Sketcher.Constraint("Horizontal", 15, 2, 18, 2),
    Sketcher.Constraint("Horizontal", 14, 2, 19, 2),
    Sketcher.Constraint("Horizontal", 18, 2, 21, 2),
    Sketcher.Constraint("Horizontal", 17, 2, 22, 2),
    Sketcher.Constraint("Horizontal", 36, 2, 39, 2),
    Sketcher.Constraint("Horizontal", 43, 2, 46, 2),
    Sketcher.Constraint("Vertical", 2, 2, 4, 2),
    Sketcher.Constraint("Vertical", 14, 2, 16, 2),
    Sketcher.Constraint("Vertical", 38, 2, 40, 2),
    Sketcher.Constraint("Vertical", 42, 2, 44, 2),
    Sketcher.Constraint("Equal", 5, 8),
    Sketcher.Constraint("Equal", 11, 14),
    Sketcher.Constraint("Equal", 17, 20),
    Sketcher.Constraint("Equal", 33, 38),
    Sketcher.Constraint("Equal", 41, 42),
    Sketcher.Constraint("Equal", 10, 12),
    Sketcher.Constraint("Equal", 35, 36),
    Sketcher.Constraint("Equal", 40, 43),
    Sketcher.Constraint("Angle", 0, Q("120 deg")),
    Sketcher.Constraint("DistanceY", 13, 2, -1, 1, Q("16 mm")),
    Sketcher.Constraint("DistanceY", 0, 2, -1, 1, Q("32.5 mm")),
    Sketcher.Constraint("DistanceY", 16, 2, -1, 1, Q("21.5 mm")),
    Sketcher.Constraint("DistanceY", -1, 1, 36, 2, Q("18.3 mm")),
    Sketcher.Constraint("DistanceY", -1, 1, 43, 2, Q("19.6 mm")),
    Sketcher.Constraint("DistanceX", 2, 1, 2, 2, Q("3.175426 mm")),
    Sketcher.Constraint("DistanceX", 0, 2, -1, 1, Q("22.175426 mm")),
    Sketcher.Constraint("DistanceX", -1, 1, 6, 2, Q("5.724574 mm")),
    Sketcher.Constraint("DistanceX", -1, 1, 12, 2, Q("32.924574 mm")),
    Sketcher.Constraint("DistanceX", -1, 1, 18, 2, Q("70.424574 mm")),
    Sketcher.Constraint("DistanceX", -1, 1, 36, 2, Q("20.924574 mm")),
    Sketcher.Constraint("DistanceX", 42, 2, -1, 1, Q("25.687713 mm")),
])
pocket3 = body.newObject("PartDesign::Pocket", "Pocket002")
pocket3.Profile = sketch6
pocket3.setExpression("Length", "Params.pocket3_length")
pocket3.Reversed = True

sketch7 = body.newObject("Sketcher::SketchObject", "Sketch006")
sketch7.AttachmentSupport = (doc.getObject("XY_Plane"), [""])
sketch7.MapMode = "FlatFace"
sketch7.AttachmentOffset = App.Placement(Vector(0, 0, 4), App.Rotation())
sketch7.addGeometry([
    Part.Circle(Vector(-19, -32.5, 0), Vector(0, 0, 1), 3.5),
    Part.Circle(Vector(-19, -32.5, 0), Vector(0, 0, 1), 1.6),
    Part.Circle(Vector(-24.1, 19.6, 0), Vector(0, 0, 1), 3.5),
    Part.Circle(Vector(-24.1, 19.6, 0), Vector(0, 0, 1), 1.6),
    Part.Circle(Vector(-36.1, 18.8, 0), Vector(0, 0, 1), 3.5),
    Part.Circle(Vector(-36.1, 18.8, 0), Vector(0, 0, 1), 1.6),
    Part.Circle(Vector(-73.6, 18.8, 0), Vector(0, 0, 1), 3.5),
    Part.Circle(Vector(-73.6, 18.8, 0), Vector(0, 0, 1), 1.6),
    Part.Circle(Vector(-73.6, -18.8, 0), Vector(0, 0, 1), 3.5),
    Part.Circle(Vector(-73.6, -18.8, 0), Vector(0, 0, 1), 1.6),
    Part.Circle(Vector(-36.1, -18.8, 0), Vector(0, 0, 1), 3.5),
    Part.Circle(Vector(-36.1, -18.8, 0), Vector(0, 0, 1), 1.6),
    Part.Circle(Vector(8.9, -32.5, 0), Vector(0, 0, 1), 3.5),
    Part.Circle(Vector(8.9, -32.5, 0), Vector(0, 0, 1), 1.6),
    Part.Circle(Vector(24.1, 18.3, 0), Vector(0, 0, 1), 3.5),
    Part.Circle(Vector(24.1, 18.3, 0), Vector(0, 0, 1), 1.6),
    Part.Circle(Vector(36.1, 18.8, 0), Vector(0, 0, 1), 3.5),
    Part.Circle(Vector(36.1, 18.8, 0), Vector(0, 0, 1), 1.6),
    Part.Circle(Vector(73.6, 18.8, 0), Vector(0, 0, 1), 3.5),
    Part.Circle(Vector(73.6, 18.8, 0), Vector(0, 0, 1), 1.6),
    Part.Circle(Vector(73.6, -18.8, 0), Vector(0, 0, 1), 3.5),
    Part.Circle(Vector(73.6, -18.8, 0), Vector(0, 0, 1), 1.6),
    Part.Circle(Vector(36.1, -18.8, 0), Vector(0, 0, 1), 3.5),
    Part.Circle(Vector(36.1, -18.8, 0), Vector(0, 0, 1), 1.6),
], False)
sketch7.addConstraint([
    Sketcher.Constraint("Coincident", 1, 3, 0, 3),
    Sketcher.Constraint("Coincident", 3, 3, 2, 3),
    Sketcher.Constraint("Coincident", 5, 3, 4, 3),
    Sketcher.Constraint("Coincident", 7, 3, 6, 3),
    Sketcher.Constraint("Coincident", 9, 3, 8, 3),
    Sketcher.Constraint("Coincident", 11, 3, 10, 3),
    Sketcher.Constraint("Coincident", 13, 3, 12, 3),
    Sketcher.Constraint("Coincident", 15, 3, 14, 3),
    Sketcher.Constraint("Coincident", 17, 3, 16, 3),
    Sketcher.Constraint("Coincident", 19, 3, 18, 3),
    Sketcher.Constraint("Coincident", 21, 3, 20, 3),
    Sketcher.Constraint("Coincident", 23, 3, 22, 3),
    Sketcher.Constraint("Equal", 0, 2),
    Sketcher.Constraint("Equal", 1, 3),
    Sketcher.Constraint("Equal", 2, 4),
    Sketcher.Constraint("Equal", 3, 5),
    Sketcher.Constraint("Equal", 4, 6),
    Sketcher.Constraint("Equal", 5, 7),
    Sketcher.Constraint("Equal", 6, 8),
    Sketcher.Constraint("Equal", 7, 9),
    Sketcher.Constraint("Equal", 8, 10),
    Sketcher.Constraint("Equal", 9, 11),
    Sketcher.Constraint("Equal", 10, 12),
    Sketcher.Constraint("Equal", 11, 13),
    Sketcher.Constraint("Equal", 12, 14),
    Sketcher.Constraint("Equal", 13, 15),
    Sketcher.Constraint("Equal", 14, 16),
    Sketcher.Constraint("Equal", 15, 17),
    Sketcher.Constraint("Equal", 16, 18),
    Sketcher.Constraint("Equal", 17, 19),
    Sketcher.Constraint("Equal", 18, 20),
    Sketcher.Constraint("Equal", 19, 21),
    Sketcher.Constraint("Equal", 20, 22),
    Sketcher.Constraint("Equal", 21, 23),
    Sketcher.Constraint("Symmetric", 10, 3, 16, 3, -1, 1),
    Sketcher.Constraint("Symmetric", 8, 3, 18, 3, -1, 1),
    Sketcher.Constraint("Symmetric", 6, 3, 20, 3, -1, 1),
    Sketcher.Constraint("Symmetric", 4, 3, 22, 3, -1, 1),
    Sketcher.Constraint("Symmetric", 4, 3, 16, 3, -2),
    Sketcher.Constraint("Symmetric", 6, 3, 18, 3, -2),
    Sketcher.Constraint("Horizontal", 5, 3, 6, 3),
    Sketcher.Constraint("Horizontal", 1, 3, 12, 3),
    Sketcher.Constraint("Diameter", 0, Q("7 mm")),
    Sketcher.Constraint("Diameter", 1, Q("3.2 mm")),
    Sketcher.Constraint("DistanceX", 0, 3, -1, 1, Q("19 mm")),
    Sketcher.Constraint("DistanceX", 4, 3, 2, 3, Q("12 mm")),
    Sketcher.Constraint("DistanceX", 10, 3, 12, 3, Q("45 mm")),
    Sketcher.Constraint("DistanceX", 14, 3, 16, 3, Q("12 mm")),
    Sketcher.Constraint("DistanceY", 0, 3, -1, 1, Q("32.5 mm")),
    Sketcher.Constraint("DistanceX", 2, 3, -1, 1, Q("24.1 mm")),
    Sketcher.Constraint("DistanceY", -1, 1, 2, 3, Q("19.6 mm")),
    Sketcher.Constraint("DistanceX", 6, 3, -1, 1, Q("73.6 mm")),
    Sketcher.Constraint("DistanceY", -1, 1, 14, 3, Q("18.3 mm")),
    Sketcher.Constraint("DistanceY", 8, 3, 6, 3, Q("37.5 mm")),
])
sketch7.setExpression("Constraints[42]", "Params.sketch7_diameter")
sketch7.setExpression("Constraints[43]", "Params.sketch7_diameter2")
pad4 = body.newObject("PartDesign::Pad", "Pad003")
pad4.Profile = sketch7
pad4.setExpression("Length", "Params.pad4_length")

sketch8 = body.newObject("Sketcher::SketchObject", "Sketch007")
sketch8.AttachmentSupport = (doc.getObject("XY_Plane"), [""])
sketch8.MapMode = "FlatFace"
sketch8.AttachmentOffset = App.Placement(Vector(0, 0, -4), App.Rotation())
sketch8.addGeometry([
    Part.Circle(Vector(-5.1, -8.9, 0), Vector(0, 0, 1), 1.7),
    Part.Circle(Vector(5.1, -8.9, 0), Vector(0, 0, 1), 1.7),
    Part.Circle(Vector(5.1, 8.9, 0), Vector(0, 0, 1), 1.7),
    Part.Circle(Vector(-5.1, 8.9, 0), Vector(0, 0, 1), 1.7),
], False)
sketch8.addConstraint([
    Sketcher.Constraint("Equal", 0, 1),
    Sketcher.Constraint("Equal", 1, 2),
    Sketcher.Constraint("Equal", 2, 3),
    Sketcher.Constraint("Symmetric", 0, 3, 2, 3, -1, 1),
    Sketcher.Constraint("Symmetric", 1, 3, 3, 3, -1, 1),
    Sketcher.Constraint("Symmetric", 0, 3, 1, 3, -2),
    Sketcher.Constraint("Diameter", 0, Q("3.302 mm")),
    Sketcher.Constraint("DistanceX", 0, 3, -1, 1, Q("5.08 mm")),
    Sketcher.Constraint("DistanceY", 0, 3, -1, 1, Q("8.89 mm")),
])
pocket4 = body.newObject("PartDesign::Pocket", "Pocket003")
pocket4.Profile = sketch8
pocket4.Type = "ThroughAll"
pocket4.Reversed = True

sketch9 = body.newObject("Sketcher::SketchObject", "Sketch008")
sketch9.AttachmentSupport = (doc.getObject("XY_Plane"), [""])
sketch9.MapMode = "FlatFace"
sketch9.AttachmentOffset = App.Placement(Vector(0, 0, 4), App.Rotation())
sketch9.addGeometry([
    Part.LineSegment(Vector(-3.5, 11.6, 0), Vector(-6.7, 11.6, 0)),
    Part.LineSegment(Vector(-6.7, 11.6, 0), Vector(-8.3, 8.9, 0)),
    Part.LineSegment(Vector(-8.3, 8.9, 0), Vector(-6.7, 6.1, 0)),
    Part.LineSegment(Vector(-6.7, 6.1, 0), Vector(-3.5, 6.1, 0)),
    Part.LineSegment(Vector(-3.5, 6.1, 0), Vector(-1.9, 8.9, 0)),
    Part.LineSegment(Vector(-1.9, 8.9, 0), Vector(-3.5, 11.6, 0)),
    Part.LineSegment(Vector(8.3, 8.9, 0), Vector(6.7, 11.6, 0)),
    Part.LineSegment(Vector(6.7, 11.6, 0), Vector(3.5, 11.6, 0)),
    Part.LineSegment(Vector(3.5, 11.6, 0), Vector(1.9, 8.9, 0)),
    Part.LineSegment(Vector(1.9, 8.9, 0), Vector(3.5, 6.1, 0)),
    Part.LineSegment(Vector(3.5, 6.1, 0), Vector(6.7, 6.1, 0)),
    Part.LineSegment(Vector(6.7, 6.1, 0), Vector(8.3, 8.9, 0)),
    Part.LineSegment(Vector(8.3, -8.9, 0), Vector(6.7, -6.1, 0)),
    Part.LineSegment(Vector(6.7, -6.1, 0), Vector(3.5, -6.1, 0)),
    Part.LineSegment(Vector(3.5, -6.1, 0), Vector(1.9, -8.9, 0)),
    Part.LineSegment(Vector(1.9, -8.9, 0), Vector(3.5, -11.6, 0)),
    Part.LineSegment(Vector(3.5, -11.6, 0), Vector(6.7, -11.6, 0)),
    Part.LineSegment(Vector(6.7, -11.6, 0), Vector(8.3, -8.9, 0)),
    Part.LineSegment(Vector(-3.5, -6.1, 0), Vector(-6.7, -6.1, 0)),
    Part.LineSegment(Vector(-6.7, -6.1, 0), Vector(-8.3, -8.9, 0)),
    Part.LineSegment(Vector(-8.3, -8.9, 0), Vector(-6.7, -11.6, 0)),
    Part.LineSegment(Vector(-6.7, -11.6, 0), Vector(-3.5, -11.6, 0)),
    Part.LineSegment(Vector(-3.5, -11.6, 0), Vector(-1.9, -8.9, 0)),
    Part.LineSegment(Vector(-1.9, -8.9, 0), Vector(-3.5, -6.1, 0)),
], False)
sketch9.addConstraint([
    Sketcher.Constraint("Coincident", 0, 2, 1, 1),
    Sketcher.Constraint("Coincident", 1, 2, 2, 1),
    Sketcher.Constraint("Coincident", 2, 2, 3, 1),
    Sketcher.Constraint("Coincident", 3, 2, 4, 1),
    Sketcher.Constraint("Coincident", 4, 2, 5, 1),
    Sketcher.Constraint("Coincident", 5, 2, 0, 1),
    Sketcher.Constraint("Coincident", 6, 2, 7, 1),
    Sketcher.Constraint("Coincident", 7, 2, 8, 1),
    Sketcher.Constraint("Coincident", 8, 2, 9, 1),
    Sketcher.Constraint("Coincident", 9, 2, 10, 1),
    Sketcher.Constraint("Coincident", 10, 2, 11, 1),
    Sketcher.Constraint("Coincident", 11, 2, 6, 1),
    Sketcher.Constraint("Coincident", 12, 2, 13, 1),
    Sketcher.Constraint("Coincident", 13, 2, 14, 1),
    Sketcher.Constraint("Coincident", 14, 2, 15, 1),
    Sketcher.Constraint("Coincident", 15, 2, 16, 1),
    Sketcher.Constraint("Coincident", 16, 2, 17, 1),
    Sketcher.Constraint("Coincident", 17, 2, 12, 1),
    Sketcher.Constraint("Coincident", 18, 2, 19, 1),
    Sketcher.Constraint("Coincident", 19, 2, 20, 1),
    Sketcher.Constraint("Coincident", 20, 2, 21, 1),
    Sketcher.Constraint("Coincident", 21, 2, 22, 1),
    Sketcher.Constraint("Coincident", 22, 2, 23, 1),
    Sketcher.Constraint("Coincident", 23, 2, 18, 1),
    Sketcher.Constraint("Horizontal", 0),
    Sketcher.Constraint("Horizontal", 3),
    Sketcher.Constraint("Horizontal", 7),
    Sketcher.Constraint("Horizontal", 10),
    Sketcher.Constraint("Horizontal", 13),
    Sketcher.Constraint("Horizontal", 16),
    Sketcher.Constraint("Horizontal", 18),
    Sketcher.Constraint("Horizontal", 21),
    Sketcher.Constraint("Symmetric", 2, 2, 12, 2, -1, 1),
    Sketcher.Constraint("Symmetric", 4, 2, 14, 2, -1, 1),
    Sketcher.Constraint("Symmetric", 5, 2, 15, 2, -1, 1),
    Sketcher.Constraint("Symmetric", 1, 2, 17, 2, -1, 1),
    Sketcher.Constraint("Symmetric", 10, 2, 18, 2, -1, 1),
    Sketcher.Constraint("Symmetric", 11, 2, 19, 2, -1, 1),
    Sketcher.Constraint("Symmetric", 6, 2, 20, 2, -1, 1),
    Sketcher.Constraint("Symmetric", 8, 2, 22, 2, -1, 1),
    Sketcher.Constraint("Symmetric", 0, 2, 6, 2, -2),
    Sketcher.Constraint("Symmetric", 4, 2, 8, 2, -2),
    Sketcher.Constraint("Symmetric", 3, 2, 9, 2, -2),
    Sketcher.Constraint("Symmetric", 1, 2, 11, 2, -2),
    Sketcher.Constraint("Parallel", 1, 4),
    Sketcher.Constraint("Parallel", 2, 5),
    Sketcher.Constraint("Parallel", 5, 6),
    Sketcher.Constraint("Parallel", 4, 8),
    Sketcher.Constraint("Parallel", 8, 11),
    Sketcher.Constraint("Parallel", 11, 14),
    Sketcher.Constraint("Parallel", 14, 17),
    Sketcher.Constraint("Parallel", 19, 22),
    Sketcher.Constraint("Parallel", 20, 23),
    Sketcher.Constraint("Horizontal", 1, 2, 4, 2),
    Sketcher.Constraint("Vertical", 0, 2, 2, 2),
    Sketcher.Constraint("Angle", 1, Q("-120 deg")),
    Sketcher.Constraint("DistanceY", 2, 2, 0, 2, Q("5.5 mm")),
    Sketcher.Constraint("DistanceY", -1, 1, 0, 2, Q("11.64 mm")),
    Sketcher.Constraint("DistanceX", 5, 2, 6, 2, Q("10.16 mm")),
    Sketcher.Constraint("DistanceX", 0, 2, 0, 1, Q("3.175426 mm")),
])
pocket5 = body.newObject("PartDesign::Pocket", "Pocket004")
pocket5.Profile = sketch9
pocket5.setExpression("Length", "Params.pocket5_length")

sketch10 = body.newObject("Sketcher::SketchObject", "Sketch009")
sketch10.AttachmentSupport = (doc.getObject("XY_Plane"), [""])
sketch10.MapMode = "FlatFace"
sketch10.AttachmentOffset = App.Placement(Vector(0, 0, -4), App.Rotation())
sketch10.addGeometry([
    Part.Circle(Vector(-5.1, 8.9, 0), Vector(0, 0, 1), 3.5),
    Part.Circle(Vector(-5.1, 8.9, 0), Vector(0, 0, 1), 1.7),
    Part.Circle(Vector(-5.1, -8.9, 0), Vector(0, 0, 1), 3.5),
    Part.Circle(Vector(-5.1, -8.9, 0), Vector(0, 0, 1), 1.7),
    Part.Circle(Vector(5.1, -8.9, 0), Vector(0, 0, 1), 3.5),
    Part.Circle(Vector(5.1, -8.9, 0), Vector(0, 0, 1), 1.7),
    Part.Circle(Vector(5.1, 8.9, 0), Vector(0, 0, 1), 3.5),
    Part.Circle(Vector(5.1, 8.9, 0), Vector(0, 0, 1), 1.7),
], False)
sketch10.addConstraint([
    Sketcher.Constraint("Coincident", 1, 3, 0, 3),
    Sketcher.Constraint("Coincident", 3, 3, 2, 3),
    Sketcher.Constraint("Coincident", 5, 3, 4, 3),
    Sketcher.Constraint("Coincident", 7, 3, 6, 3),
    Sketcher.Constraint("Equal", 0, 2),
    Sketcher.Constraint("Equal", 1, 3),
    Sketcher.Constraint("Equal", 2, 4),
    Sketcher.Constraint("Equal", 3, 5),
    Sketcher.Constraint("Equal", 4, 6),
    Sketcher.Constraint("Equal", 5, 7),
    Sketcher.Constraint("Symmetric", 0, 3, 4, 3, -1, 1),
    Sketcher.Constraint("Symmetric", 2, 3, 6, 3, -1, 1),
    Sketcher.Constraint("Symmetric", 2, 3, 4, 3, -2),
    Sketcher.Constraint("Diameter", 0, Q("7 mm")),
    Sketcher.Constraint("Diameter", 1, Q("3.302 mm")),
    Sketcher.Constraint("DistanceX", 0, 3, -1, 1, Q("5.08 mm")),
    Sketcher.Constraint("DistanceY", -1, 1, 0, 3, Q("8.89 mm")),
])
sketch10.setExpression("Constraints[13]", "Params.sketch10_diameter")
pad5 = body.newObject("PartDesign::Pad", "Pad004")
pad5.Profile = sketch10
pad5.setExpression("Length", "Params.pad5_length")
pad5.Reversed = True

doc.recompute()
